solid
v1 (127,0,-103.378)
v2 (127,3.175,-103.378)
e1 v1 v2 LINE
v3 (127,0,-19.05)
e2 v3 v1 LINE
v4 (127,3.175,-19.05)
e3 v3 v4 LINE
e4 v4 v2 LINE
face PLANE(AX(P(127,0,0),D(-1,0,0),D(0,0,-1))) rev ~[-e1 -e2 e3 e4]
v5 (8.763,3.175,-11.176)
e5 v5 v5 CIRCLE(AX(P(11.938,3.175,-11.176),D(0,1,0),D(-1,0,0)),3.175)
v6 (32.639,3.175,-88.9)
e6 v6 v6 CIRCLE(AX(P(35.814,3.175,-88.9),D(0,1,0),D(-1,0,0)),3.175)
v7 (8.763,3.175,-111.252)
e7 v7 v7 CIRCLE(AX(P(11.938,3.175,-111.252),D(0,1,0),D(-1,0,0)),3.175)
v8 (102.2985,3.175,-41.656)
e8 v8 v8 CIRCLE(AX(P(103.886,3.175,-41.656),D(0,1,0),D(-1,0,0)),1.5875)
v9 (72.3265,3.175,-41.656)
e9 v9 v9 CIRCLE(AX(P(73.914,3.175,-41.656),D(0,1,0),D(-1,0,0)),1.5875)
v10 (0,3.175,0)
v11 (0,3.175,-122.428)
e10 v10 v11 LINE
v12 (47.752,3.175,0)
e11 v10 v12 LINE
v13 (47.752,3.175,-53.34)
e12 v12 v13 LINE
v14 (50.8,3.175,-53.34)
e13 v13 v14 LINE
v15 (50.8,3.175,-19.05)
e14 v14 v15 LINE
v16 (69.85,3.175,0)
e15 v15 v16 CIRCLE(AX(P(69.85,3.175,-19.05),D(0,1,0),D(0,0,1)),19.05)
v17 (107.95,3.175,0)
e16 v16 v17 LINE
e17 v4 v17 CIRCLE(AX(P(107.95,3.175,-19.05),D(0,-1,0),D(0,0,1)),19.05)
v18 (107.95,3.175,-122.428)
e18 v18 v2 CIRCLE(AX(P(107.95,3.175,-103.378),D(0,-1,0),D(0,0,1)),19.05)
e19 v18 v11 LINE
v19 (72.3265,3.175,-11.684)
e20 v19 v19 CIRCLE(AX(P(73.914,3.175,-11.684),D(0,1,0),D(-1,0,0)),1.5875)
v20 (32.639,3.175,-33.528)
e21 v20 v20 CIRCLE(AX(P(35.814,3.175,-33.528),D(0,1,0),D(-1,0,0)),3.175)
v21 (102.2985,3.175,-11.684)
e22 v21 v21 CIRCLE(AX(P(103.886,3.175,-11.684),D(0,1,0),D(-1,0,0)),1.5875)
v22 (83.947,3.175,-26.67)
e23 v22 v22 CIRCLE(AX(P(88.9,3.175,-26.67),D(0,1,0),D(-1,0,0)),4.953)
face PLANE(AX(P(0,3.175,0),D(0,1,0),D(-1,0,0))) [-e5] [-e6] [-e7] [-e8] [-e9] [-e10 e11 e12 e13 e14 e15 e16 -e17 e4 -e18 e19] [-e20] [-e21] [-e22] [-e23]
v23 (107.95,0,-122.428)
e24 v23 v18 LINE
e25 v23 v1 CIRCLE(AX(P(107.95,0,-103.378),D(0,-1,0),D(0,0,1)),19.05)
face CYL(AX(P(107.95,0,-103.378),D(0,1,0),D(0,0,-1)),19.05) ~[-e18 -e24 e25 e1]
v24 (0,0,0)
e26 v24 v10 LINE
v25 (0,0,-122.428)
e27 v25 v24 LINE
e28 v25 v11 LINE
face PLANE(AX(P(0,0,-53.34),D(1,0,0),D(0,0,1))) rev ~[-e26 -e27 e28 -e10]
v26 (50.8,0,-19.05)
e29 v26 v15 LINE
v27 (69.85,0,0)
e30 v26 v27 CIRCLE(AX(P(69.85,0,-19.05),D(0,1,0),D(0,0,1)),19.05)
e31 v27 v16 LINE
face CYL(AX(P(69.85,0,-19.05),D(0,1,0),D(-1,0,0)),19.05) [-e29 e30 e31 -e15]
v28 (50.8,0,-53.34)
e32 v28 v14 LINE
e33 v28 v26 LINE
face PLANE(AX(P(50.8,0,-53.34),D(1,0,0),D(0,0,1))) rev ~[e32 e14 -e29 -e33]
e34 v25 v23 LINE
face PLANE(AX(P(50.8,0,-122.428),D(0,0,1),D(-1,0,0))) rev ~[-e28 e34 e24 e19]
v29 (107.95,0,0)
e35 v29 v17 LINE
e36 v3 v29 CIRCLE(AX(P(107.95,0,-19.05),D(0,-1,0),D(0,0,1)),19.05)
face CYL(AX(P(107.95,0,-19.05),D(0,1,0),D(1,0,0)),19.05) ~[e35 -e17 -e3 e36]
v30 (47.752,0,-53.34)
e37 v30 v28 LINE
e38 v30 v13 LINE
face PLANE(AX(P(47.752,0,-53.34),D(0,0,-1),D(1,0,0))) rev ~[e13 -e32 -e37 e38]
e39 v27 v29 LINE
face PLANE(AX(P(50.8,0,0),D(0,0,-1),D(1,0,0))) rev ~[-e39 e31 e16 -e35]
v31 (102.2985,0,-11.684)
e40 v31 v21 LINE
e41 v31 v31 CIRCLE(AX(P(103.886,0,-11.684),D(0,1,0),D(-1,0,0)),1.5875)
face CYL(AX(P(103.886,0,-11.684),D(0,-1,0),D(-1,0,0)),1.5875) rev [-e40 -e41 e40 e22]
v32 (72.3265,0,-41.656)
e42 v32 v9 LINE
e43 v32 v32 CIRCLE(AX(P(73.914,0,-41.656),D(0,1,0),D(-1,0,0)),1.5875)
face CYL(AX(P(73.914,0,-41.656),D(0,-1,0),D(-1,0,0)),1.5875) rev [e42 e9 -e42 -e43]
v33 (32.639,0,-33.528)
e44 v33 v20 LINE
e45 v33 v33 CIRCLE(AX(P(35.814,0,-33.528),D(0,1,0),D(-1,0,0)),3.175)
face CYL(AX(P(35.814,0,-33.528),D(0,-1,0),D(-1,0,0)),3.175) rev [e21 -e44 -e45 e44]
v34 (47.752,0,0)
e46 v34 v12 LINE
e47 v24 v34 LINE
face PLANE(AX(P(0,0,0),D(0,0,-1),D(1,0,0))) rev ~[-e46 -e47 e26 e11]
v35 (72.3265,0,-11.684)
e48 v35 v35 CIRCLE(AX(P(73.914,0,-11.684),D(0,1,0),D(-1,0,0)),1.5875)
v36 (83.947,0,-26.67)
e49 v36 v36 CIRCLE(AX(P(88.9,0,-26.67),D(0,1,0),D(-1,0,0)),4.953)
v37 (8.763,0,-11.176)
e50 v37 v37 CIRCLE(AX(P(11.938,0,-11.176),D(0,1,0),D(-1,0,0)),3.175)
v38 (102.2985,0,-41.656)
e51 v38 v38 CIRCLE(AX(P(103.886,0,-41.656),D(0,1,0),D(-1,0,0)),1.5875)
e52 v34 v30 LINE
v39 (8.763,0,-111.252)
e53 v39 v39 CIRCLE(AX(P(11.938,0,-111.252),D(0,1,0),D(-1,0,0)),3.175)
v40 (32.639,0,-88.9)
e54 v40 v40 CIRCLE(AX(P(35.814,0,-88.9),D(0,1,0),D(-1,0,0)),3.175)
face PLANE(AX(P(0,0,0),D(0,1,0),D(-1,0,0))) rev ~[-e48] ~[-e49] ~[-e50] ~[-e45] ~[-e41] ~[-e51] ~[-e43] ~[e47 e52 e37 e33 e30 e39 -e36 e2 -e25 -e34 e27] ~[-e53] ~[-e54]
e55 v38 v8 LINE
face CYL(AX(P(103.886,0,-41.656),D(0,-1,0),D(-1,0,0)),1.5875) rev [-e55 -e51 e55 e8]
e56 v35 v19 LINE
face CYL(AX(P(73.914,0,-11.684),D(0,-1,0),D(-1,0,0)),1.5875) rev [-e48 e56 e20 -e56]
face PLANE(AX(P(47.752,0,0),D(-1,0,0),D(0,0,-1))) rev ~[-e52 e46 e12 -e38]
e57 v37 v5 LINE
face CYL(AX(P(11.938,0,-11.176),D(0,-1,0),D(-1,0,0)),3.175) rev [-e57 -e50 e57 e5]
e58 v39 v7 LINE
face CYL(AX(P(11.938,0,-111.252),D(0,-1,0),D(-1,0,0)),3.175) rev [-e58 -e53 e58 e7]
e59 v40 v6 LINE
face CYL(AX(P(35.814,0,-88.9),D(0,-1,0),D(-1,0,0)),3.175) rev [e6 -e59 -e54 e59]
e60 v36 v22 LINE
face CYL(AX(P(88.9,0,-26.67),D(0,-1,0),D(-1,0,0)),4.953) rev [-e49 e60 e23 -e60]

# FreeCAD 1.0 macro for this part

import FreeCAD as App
import Part
import Sketcher

V = App.Vector
Q = App.Units.Quantity


def edges_at(feature, points):
    """Names of the edges that pass closest to the given points."""
    edges = feature.Shape.Edges
    near = lambda p: min(range(len(edges)), key=lambda i: edges[i].distToShape(Part.Vertex(*p))[0])
    return sorted({f"Edge{near(p) + 1}" for p in points})

doc = App.newDocument("Part")
body = doc.addObject("PartDesign::Body", "Body")

sketch1 = body.newObject("Sketcher::SketchObject", "Sketch")
sketch1.AttachmentSupport = (doc.getObject("XZ_Plane"), [""])
sketch1.MapMode = "FlatFace"
sketch1.addGeometry(Part.LineSegment(V(0, 0, 0), V(47.752, 0, 0)), False)
sketch1.addGeometry(Part.LineSegment(V(47.752, 0, 0), V(47.752, -53.34, 0)), False)
sketch1.addGeometry(Part.LineSegment(V(47.752, -53.34, 0), V(50.8, -53.34, 0)), False)
sketch1.addGeometry(Part.LineSegment(V(50.8, -53.34, 0), V(50.8, 0, 0)), False)
sketch1.addGeometry(Part.LineSegment(V(50.8, 0, 0), V(127, 0, 0)), False)
sketch1.addGeometry(Part.LineSegment(V(127, 0, 0), V(127, -122.428, 0)), False)
sketch1.addGeometry(Part.LineSegment(V(127, -122.428, 0), V(0, -122.428, 0)), False)
sketch1.addGeometry(Part.LineSegment(V(0, -122.428, 0), V(0, 0, 0)), False)
sketch1.addGeometry(Part.Circle(V(35.814, -33.528, 0), V(0, 0, 1), 3.175), False)
sketch1.addGeometry(Part.Circle(V(11.938, -11.176, 0), V(0, 0, 1), 3.175), False)
sketch1.addGeometry(Part.Circle(V(35.814, -88.9, 0), V(0, 0, 1), 3.175), False)
sketch1.addGeometry(Part.Circle(V(11.938, -111.252, 0), V(0, 0, 1), 3.175), False)
sketch1.addGeometry(Part.Circle(V(73.914, -11.684, 0), V(0, 0, 1), 1.5875), False)
sketch1.addGeometry(Part.Circle(V(103.886, -41.656, 0), V(0, 0, 1), 1.5875), False)
sketch1.addGeometry(Part.Circle(V(73.914, -41.656, 0), V(0, 0, 1), 1.5875), False)
sketch1.addGeometry(Part.Circle(V(103.886, -11.684, 0), V(0, 0, 1), 1.5875), False)
sketch1.addGeometry(Part.Circle(V(88.9, -26.67, 0), V(0, 0, 1), 4.953), False)
sketch1.addConstraint(Sketcher.Constraint("Coincident", 0, 2, 1, 1))
sketch1.addConstraint(Sketcher.Constraint("Coincident", 1, 2, 2, 1))
sketch1.addConstraint(Sketcher.Constraint("Coincident", 2, 2, 3, 1))
sketch1.addConstraint(Sketcher.Constraint("Coincident", 3, 2, 4, 1))
sketch1.addConstraint(Sketcher.Constraint("Coincident", 4, 2, 5, 1))
sketch1.addConstraint(Sketcher.Constraint("Coincident", 5, 2, 6, 1))
sketch1.addConstraint(Sketcher.Constraint("Coincident", 6, 2, 7, 1))
sketch1.addConstraint(Sketcher.Constraint("Coincident", 7, 2, 0, 1))
sketch1.addConstraint(Sketcher.Constraint("Horizontal", 0))
sketch1.addConstraint(Sketcher.Constraint("Vertical", 1))
sketch1.addConstraint(Sketcher.Constraint("Horizontal", 2))
sketch1.addConstraint(Sketcher.Constraint("Vertical", 3))
sketch1.addConstraint(Sketcher.Constraint("Horizontal", 4))
sketch1.addConstraint(Sketcher.Constraint("Vertical", 5))
sketch1.addConstraint(Sketcher.Constraint("Horizontal", 6))
sketch1.addConstraint(Sketcher.Constraint("Vertical", 7))
sketch1.addConstraint(Sketcher.Constraint("Coincident", 7, 2, -1, 1))
sketch1.addConstraint(Sketcher.Constraint("Equal", 8, 9))
sketch1.addConstraint(Sketcher.Constraint("Equal", 9, 10))
sketch1.addConstraint(Sketcher.Constraint("Equal", 10, 11))
sketch1.addConstraint(Sketcher.Constraint("Equal", 12, 13))
sketch1.addConstraint(Sketcher.Constraint("Equal", 13, 14))
sketch1.addConstraint(Sketcher.Constraint("Equal", 14, 15))
sketch1.addConstraint(Sketcher.Constraint("PointOnObject", 3, 2, -1))
sketch1.addConstraint(Sketcher.Constraint("Horizontal", 13, 3, 14, 3))
sketch1.addConstraint(Sketcher.Constraint("Horizontal", 12, 3, 15, 3))
sketch1.addConstraint(Sketcher.Constraint("Vertical", 8, 3, 10, 3))
sketch1.addConstraint(Sketcher.Constraint("Vertical", 9, 3, 11, 3))
sketch1.addConstraint(Sketcher.Constraint("Vertical", 12, 3, 14, 3))
sketch1.addConstraint(Sketcher.Constraint("Vertical", 13, 3, 15, 3))
sketch1.addConstraint(Sketcher.Constraint("Diameter", 8, Q("0.25 in")))
sketch1.addConstraint(Sketcher.Constraint("Diameter", 16, Q("0.39 in")))
sketch1.addConstraint(Sketcher.Constraint("DistanceX", 4, 1, 4, 2, Q("3 in")))
sketch1.addConstraint(Sketcher.Constraint("DistanceX", 6, 2, 6, 1, Q("5 in")))
sketch1.addConstraint(Sketcher.Constraint("Diameter", 12, Q("0.125 in")))
sketch1.addConstraint(Sketcher.Constraint("DistanceY", 1, 2, 1, 1, Q("2.1 in")))
sketch1.addConstraint(Sketcher.Constraint("DistanceX", 0, 1, 0, 2, Q("1.88 in")))
sketch1.addConstraint(Sketcher.Constraint("DistanceY", 5, 2, 5, 1, Q("4.82 in")))
sketch1.addConstraint(Sketcher.Constraint("DistanceX", 8, 3, 12, 3, Q("1.5 in")))
sketch1.addConstraint(Sketcher.Constraint("DistanceX", 2, 2, 16, 3, Q("1.5 in")))
sketch1.addConstraint(Sketcher.Constraint("DistanceX", -1, 1, 9, 3, Q("0.47 in")))
sketch1.addConstraint(Sketcher.Constraint("DistanceY", 9, 3, -1, 1, Q("0.44 in")))
sketch1.addConstraint(Sketcher.Constraint("DistanceX", 9, 3, 8, 3, Q("0.94 in")))
sketch1.addConstraint(Sketcher.Constraint("DistanceY", 8, 3, 9, 3, Q("0.88 in")))
sketch1.addConstraint(Sketcher.Constraint("DistanceY", 11, 3, 10, 3, Q("0.88 in")))
sketch1.addConstraint(Sketcher.Constraint("DistanceX", 16, 3, 13, 3, Q("0.59 in")))
sketch1.addConstraint(Sketcher.Constraint("DistanceY", 13, 3, 16, 3, Q("0.59 in")))
sketch1.addConstraint(Sketcher.Constraint("DistanceY", 16, 3, 15, 3, Q("0.59 in")))
sketch1.addConstraint(Sketcher.Constraint("DistanceY", 6, 2, 11, 3, Q("0.44 in")))
sketch1.addConstraint(Sketcher.Constraint("DistanceY", 13, 3, 9, 3, Q("1.2 in")))
pad1 = body.newObject("PartDesign::Pad", "Pad")
pad1.Profile = sketch1
pad1.Length = Q("0.125 in")
pad1.Reversed = True
doc.recompute()

fillet = body.newObject("PartDesign::Fillet", "Fillet")
fillet.Base = (pad1, edges_at(pad1, [(127, 1.587, 0), (50.8, 1.587, 0), (127, 1.587, -122.428)]))
fillet.Radius = Q("0.75 in")

doc.recompute()
